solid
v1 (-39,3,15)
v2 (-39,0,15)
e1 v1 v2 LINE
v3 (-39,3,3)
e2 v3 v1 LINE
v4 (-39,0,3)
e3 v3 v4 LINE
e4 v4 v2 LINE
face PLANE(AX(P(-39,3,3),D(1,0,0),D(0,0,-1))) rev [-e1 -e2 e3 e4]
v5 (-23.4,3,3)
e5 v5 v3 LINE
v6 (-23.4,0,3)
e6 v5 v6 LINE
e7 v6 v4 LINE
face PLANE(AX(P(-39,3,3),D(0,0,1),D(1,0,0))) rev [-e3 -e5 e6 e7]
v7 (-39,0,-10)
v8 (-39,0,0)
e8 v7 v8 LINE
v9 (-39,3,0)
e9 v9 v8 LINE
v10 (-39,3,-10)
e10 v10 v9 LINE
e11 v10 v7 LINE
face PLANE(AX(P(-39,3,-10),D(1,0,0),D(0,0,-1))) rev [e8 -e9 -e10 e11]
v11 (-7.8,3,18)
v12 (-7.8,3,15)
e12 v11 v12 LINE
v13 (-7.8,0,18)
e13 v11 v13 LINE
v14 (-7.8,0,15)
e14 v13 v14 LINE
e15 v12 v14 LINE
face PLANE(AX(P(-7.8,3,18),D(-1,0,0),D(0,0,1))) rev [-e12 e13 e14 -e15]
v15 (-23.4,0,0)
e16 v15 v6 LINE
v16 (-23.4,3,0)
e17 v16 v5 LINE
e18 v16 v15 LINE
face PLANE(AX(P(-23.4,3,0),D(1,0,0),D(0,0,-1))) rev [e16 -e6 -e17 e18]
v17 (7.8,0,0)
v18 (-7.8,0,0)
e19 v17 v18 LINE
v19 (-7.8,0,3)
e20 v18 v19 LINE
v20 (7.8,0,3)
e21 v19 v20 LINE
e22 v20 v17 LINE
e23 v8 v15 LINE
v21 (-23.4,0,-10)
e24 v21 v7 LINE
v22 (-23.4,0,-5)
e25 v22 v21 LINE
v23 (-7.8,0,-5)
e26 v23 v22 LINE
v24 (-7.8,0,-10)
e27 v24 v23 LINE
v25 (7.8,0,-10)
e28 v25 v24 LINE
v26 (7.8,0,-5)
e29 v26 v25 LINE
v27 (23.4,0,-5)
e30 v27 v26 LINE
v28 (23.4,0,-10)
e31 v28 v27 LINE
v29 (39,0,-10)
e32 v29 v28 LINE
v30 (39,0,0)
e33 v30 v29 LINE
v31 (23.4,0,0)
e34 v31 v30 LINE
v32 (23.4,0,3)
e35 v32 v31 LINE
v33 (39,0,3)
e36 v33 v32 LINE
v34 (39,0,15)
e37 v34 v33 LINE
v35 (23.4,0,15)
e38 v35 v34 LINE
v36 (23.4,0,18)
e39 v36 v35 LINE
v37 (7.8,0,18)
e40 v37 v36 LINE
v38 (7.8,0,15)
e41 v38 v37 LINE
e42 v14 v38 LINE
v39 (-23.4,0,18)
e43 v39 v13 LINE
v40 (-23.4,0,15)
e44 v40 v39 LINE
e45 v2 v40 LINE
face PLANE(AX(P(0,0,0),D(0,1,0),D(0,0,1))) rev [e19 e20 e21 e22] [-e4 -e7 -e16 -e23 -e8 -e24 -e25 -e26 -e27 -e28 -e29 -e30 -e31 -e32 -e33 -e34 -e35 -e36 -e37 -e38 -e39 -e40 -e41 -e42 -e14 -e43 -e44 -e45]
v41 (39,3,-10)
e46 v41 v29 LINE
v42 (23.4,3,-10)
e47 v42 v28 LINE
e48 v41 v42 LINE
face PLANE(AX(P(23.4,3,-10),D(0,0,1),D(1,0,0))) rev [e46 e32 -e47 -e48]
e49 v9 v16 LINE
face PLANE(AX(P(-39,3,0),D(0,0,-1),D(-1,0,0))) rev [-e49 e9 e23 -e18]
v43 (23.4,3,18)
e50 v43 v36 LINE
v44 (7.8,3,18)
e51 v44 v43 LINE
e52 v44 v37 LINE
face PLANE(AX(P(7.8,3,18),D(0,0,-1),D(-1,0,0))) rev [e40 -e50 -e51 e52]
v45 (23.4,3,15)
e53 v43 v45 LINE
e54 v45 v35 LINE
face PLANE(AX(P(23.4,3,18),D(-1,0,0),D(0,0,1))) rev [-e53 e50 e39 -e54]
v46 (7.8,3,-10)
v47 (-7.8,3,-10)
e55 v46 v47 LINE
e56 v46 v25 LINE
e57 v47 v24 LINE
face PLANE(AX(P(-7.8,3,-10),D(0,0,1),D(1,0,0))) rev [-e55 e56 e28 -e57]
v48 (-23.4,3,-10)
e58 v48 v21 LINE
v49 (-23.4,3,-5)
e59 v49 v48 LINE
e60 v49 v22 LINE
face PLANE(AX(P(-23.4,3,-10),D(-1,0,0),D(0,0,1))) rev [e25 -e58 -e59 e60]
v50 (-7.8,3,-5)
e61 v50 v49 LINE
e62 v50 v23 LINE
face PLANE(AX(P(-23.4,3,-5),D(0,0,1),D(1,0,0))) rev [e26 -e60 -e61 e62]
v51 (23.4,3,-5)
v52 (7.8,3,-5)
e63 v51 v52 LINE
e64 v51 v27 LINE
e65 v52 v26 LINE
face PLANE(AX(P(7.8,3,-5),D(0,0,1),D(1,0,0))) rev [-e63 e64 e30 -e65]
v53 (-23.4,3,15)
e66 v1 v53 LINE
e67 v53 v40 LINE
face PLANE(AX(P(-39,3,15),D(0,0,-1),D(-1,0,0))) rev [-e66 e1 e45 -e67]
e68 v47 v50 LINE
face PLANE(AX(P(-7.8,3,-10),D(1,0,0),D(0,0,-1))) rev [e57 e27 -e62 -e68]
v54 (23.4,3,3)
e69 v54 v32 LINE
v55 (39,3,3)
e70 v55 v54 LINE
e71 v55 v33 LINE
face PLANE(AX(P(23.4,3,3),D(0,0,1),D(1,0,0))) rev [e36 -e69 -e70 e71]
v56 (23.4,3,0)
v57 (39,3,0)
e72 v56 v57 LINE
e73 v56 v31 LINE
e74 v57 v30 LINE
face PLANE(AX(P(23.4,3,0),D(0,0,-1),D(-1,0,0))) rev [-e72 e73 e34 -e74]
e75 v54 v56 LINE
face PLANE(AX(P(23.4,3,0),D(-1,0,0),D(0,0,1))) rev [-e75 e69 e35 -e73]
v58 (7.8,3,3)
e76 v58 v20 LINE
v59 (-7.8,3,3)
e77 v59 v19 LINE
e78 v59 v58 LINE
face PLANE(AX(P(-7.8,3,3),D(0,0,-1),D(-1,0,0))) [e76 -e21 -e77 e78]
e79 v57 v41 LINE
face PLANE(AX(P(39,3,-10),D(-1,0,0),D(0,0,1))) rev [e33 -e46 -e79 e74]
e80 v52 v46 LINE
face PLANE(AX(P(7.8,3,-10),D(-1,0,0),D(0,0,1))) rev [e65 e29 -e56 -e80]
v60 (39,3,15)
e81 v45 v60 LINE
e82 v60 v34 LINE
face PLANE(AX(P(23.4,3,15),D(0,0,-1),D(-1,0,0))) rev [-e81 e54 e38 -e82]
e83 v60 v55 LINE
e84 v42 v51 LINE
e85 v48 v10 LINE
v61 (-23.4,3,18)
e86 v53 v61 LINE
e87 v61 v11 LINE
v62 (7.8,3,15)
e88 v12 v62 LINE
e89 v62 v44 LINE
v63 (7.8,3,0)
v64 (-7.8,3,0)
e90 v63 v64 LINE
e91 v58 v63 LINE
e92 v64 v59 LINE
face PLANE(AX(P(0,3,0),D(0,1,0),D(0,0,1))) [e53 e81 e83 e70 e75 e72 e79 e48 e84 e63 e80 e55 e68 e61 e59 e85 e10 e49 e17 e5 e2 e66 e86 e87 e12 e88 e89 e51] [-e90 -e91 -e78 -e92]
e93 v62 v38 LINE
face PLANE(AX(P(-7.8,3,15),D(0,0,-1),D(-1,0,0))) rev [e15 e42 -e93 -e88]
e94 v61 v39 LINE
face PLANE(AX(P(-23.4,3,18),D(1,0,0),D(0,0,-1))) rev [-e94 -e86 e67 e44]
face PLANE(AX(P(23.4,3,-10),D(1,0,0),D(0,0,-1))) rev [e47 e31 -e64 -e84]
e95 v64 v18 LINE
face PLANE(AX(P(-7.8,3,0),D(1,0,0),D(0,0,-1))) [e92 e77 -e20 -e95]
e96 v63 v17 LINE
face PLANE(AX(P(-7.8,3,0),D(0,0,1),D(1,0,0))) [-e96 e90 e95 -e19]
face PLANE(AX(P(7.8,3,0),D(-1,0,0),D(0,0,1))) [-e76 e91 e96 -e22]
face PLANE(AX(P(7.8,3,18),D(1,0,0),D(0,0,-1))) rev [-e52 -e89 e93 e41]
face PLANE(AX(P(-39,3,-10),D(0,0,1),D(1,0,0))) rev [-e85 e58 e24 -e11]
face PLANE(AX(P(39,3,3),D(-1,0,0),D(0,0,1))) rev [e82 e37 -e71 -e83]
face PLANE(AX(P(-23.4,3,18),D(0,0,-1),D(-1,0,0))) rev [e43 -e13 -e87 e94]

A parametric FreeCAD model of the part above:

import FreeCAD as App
import Part
import Sketcher

doc = App.newDocument("Part")
body = doc.addObject("PartDesign::Body", "Body")

sketch1 = body.newObject("Sketcher::SketchObject", "Sketch")
sketch1.AttachmentSupport = (doc.getObject("XZ_Plane"), [""])
sketch1.MapMode = "FlatFace"
sketch1.addGeometry(Part.LineSegment(App.Vector(-7.8, -5, 0), App.Vector(-23.4, -5, 0)), False)
sketch1.addGeometry(Part.LineSegment(App.Vector(-23.4, -5, 0), App.Vector(-23.4, -10, 0)), False)
sketch1.addGeometry(Part.LineSegment(App.Vector(-23.4, -10, 0), App.Vector(-39, -10, 0)), False)
sketch1.addGeometry(Part.LineSegment(App.Vector(-39, -10, 0), App.Vector(-39, 0, 0)), False)
sketch1.addGeometry(Part.LineSegment(App.Vector(-39, 0, 0), App.Vector(-23.4, 0, 0)), False)
sketch1.addGeometry(Part.LineSegment(App.Vector(-23.4, 0, 0), App.Vector(-23.4, 3, 0)), False)
sketch1.addGeometry(Part.LineSegment(App.Vector(-23.4, 3, 0), App.Vector(-39, 3, 0)), False)
sketch1.addGeometry(Part.LineSegment(App.Vector(-39, 3, 0), App.Vector(-39, 15, 0)), False)
sketch1.addGeometry(Part.LineSegment(App.Vector(-39, 15, 0), App.Vector(-23.4, 15, 0)), False)
sketch1.addGeometry(Part.LineSegment(App.Vector(-23.4, 15, 0), App.Vector(-23.4, 18, 0)), False)
sketch1.addGeometry(Part.LineSegment(App.Vector(-23.4, 18, 0), App.Vector(-7.8, 18, 0)), False)
sketch1.addGeometry(Part.LineSegment(App.Vector(-7.8, 18, 0), App.Vector(-7.8, 15, 0)), False)
sketch1.addGeometry(Part.LineSegment(App.Vector(-7.8, 15, 0), App.Vector(7.8, 15, 0)), False)
sketch1.addGeometry(Part.LineSegment(App.Vector(7.8, 15, 0), App.Vector(7.8, 18, 0)), False)
sketch1.addGeometry(Part.LineSegment(App.Vector(7.8, 18, 0), App.Vector(23.4, 18, 0)), False)
sketch1.addGeometry(Part.LineSegment(App.Vector(23.4, 18, 0), App.Vector(23.4, 15, 0)), False)
sketch1.addGeometry(Part.LineSegment(App.Vector(23.4, 15, 0), App.Vector(39, 15, 0)), False)
sketch1.addGeometry(Part.LineSegment(App.Vector(39, 15, 0), App.Vector(39, 3, 0)), False)
sketch1.addGeometry(Part.LineSegment(App.Vector(39, 3, 0), App.Vector(23.4, 3, 0)), False)
sketch1.addGeometry(Part.LineSegment(App.Vector(23.4, 3, 0), App.Vector(23.4, 0, 0)), False)
sketch1.addGeometry(Part.LineSegment(App.Vector(23.4, 0, 0), App.Vector(39, 0, 0)), False)
sketch1.addGeometry(Part.LineSegment(App.Vector(39, 0, 0), App.Vector(39, -10, 0)), False)
sketch1.addGeometry(Part.LineSegment(App.Vector(39, -10, 0), App.Vector(23.4, -10, 0)), False)
sketch1.addGeometry(Part.LineSegment(App.Vector(23.4, -10, 0), App.Vector(23.4, -5, 0)), False)
sketch1.addGeometry(Part.LineSegment(App.Vector(23.4, -5, 0), App.Vector(7.8, -5, 0)), False)
sketch1.addGeometry(Part.LineSegment(App.Vector(7.8, -5, 0), App.Vector(7.8, -10, 0)), False)
sketch1.addGeometry(Part.LineSegment(App.Vector(7.8, -10, 0), App.Vector(-7.8, -10, 0)), False)
sketch1.addGeometry(Part.LineSegment(App.Vector(-7.8, -10, 0), App.Vector(-7.8, -5, 0)), False)
sketch1.addGeometry(Part.LineSegment(App.Vector(-7.8, 3, 0), App.Vector(-7.8, 0, 0)), False)
sketch1.addGeometry(Part.LineSegment(App.Vector(-7.8, 0, 0), App.Vector(7.8, 0, 0)), False)
sketch1.addGeometry(Part.LineSegment(App.Vector(7.8, 0, 0), App.Vector(7.8, 3, 0)), False)
sketch1.addGeometry(Part.LineSegment(App.Vector(7.8, 3, 0), App.Vector(-7.8, 3, 0)), False)
sketch1.addConstraint(Sketcher.Constraint("Coincident", 0, 2, 1, 1))
sketch1.addConstraint(Sketcher.Constraint("Coincident", 1, 2, 2, 1))
sketch1.addConstraint(Sketcher.Constraint("Coincident", 2, 2, 3, 1))
sketch1.addConstraint(Sketcher.Constraint("Coincident", 3, 2, 4, 1))
sketch1.addConstraint(Sketcher.Constraint("Coincident", 4, 2, 5, 1))
sketch1.addConstraint(Sketcher.Constraint("Coincident", 5, 2, 6, 1))
sketch1.addConstraint(Sketcher.Constraint("Coincident", 6, 2, 7, 1))
sketch1.addConstraint(Sketcher.Constraint("Coincident", 7, 2, 8, 1))
sketch1.addConstraint(Sketcher.Constraint("Coincident", 8, 2, 9, 1))
sketch1.addConstraint(Sketcher.Constraint("Coincident", 9, 2, 10, 1))
sketch1.addConstraint(Sketcher.Constraint("Coincident", 10, 2, 11, 1))
sketch1.addConstraint(Sketcher.Constraint("Coincident", 11, 2, 12, 1))
sketch1.addConstraint(Sketcher.Constraint("Coincident", 12, 2, 13, 1))
sketch1.addConstraint(Sketcher.Constraint("Coincident", 13, 2, 14, 1))
sketch1.addConstraint(Sketcher.Constraint("Coincident", 14, 2, 15, 1))
sketch1.addConstraint(Sketcher.Constraint("Coincident", 15, 2, 16, 1))
sketch1.addConstraint(Sketcher.Constraint("Coincident", 16, 2, 17, 1))
sketch1.addConstraint(Sketcher.Constraint("Coincident", 17, 2, 18, 1))
sketch1.addConstraint(Sketcher.Constraint("Coincident", 18, 2, 19, 1))
sketch1.addConstraint(Sketcher.Constraint("Coincident", 19, 2, 20, 1))
sketch1.addConstraint(Sketcher.Constraint("Coincident", 20, 2, 21, 1))
sketch1.addConstraint(Sketcher.Constraint("Coincident", 21, 2, 22, 1))
sketch1.addConstraint(Sketcher.Constraint("Coincident", 22, 2, 23, 1))
sketch1.addConstraint(Sketcher.Constraint("Coincident", 23, 2, 24, 1))
sketch1.addConstraint(Sketcher.Constraint("Coincident", 24, 2, 25, 1))
sketch1.addConstraint(Sketcher.Constraint("Coincident", 25, 2, 26, 1))
sketch1.addConstraint(Sketcher.Constraint("Coincident", 26, 2, 27, 1))
sketch1.addConstraint(Sketcher.Constraint("Coincident", 27, 2, 0, 1))
sketch1.addConstraint(Sketcher.Constraint("Coincident", 28, 2, 29, 1))
sketch1.addConstraint(Sketcher.Constraint("Coincident", 29, 2, 30, 1))
sketch1.addConstraint(Sketcher.Constraint("Coincident", 30, 2, 31, 1))
sketch1.addConstraint(Sketcher.Constraint("Coincident", 31, 2, 28, 1))
sketch1.addConstraint(Sketcher.Constraint("Horizontal", 0))
sketch1.addConstraint(Sketcher.Constraint("Vertical", 1))
sketch1.addConstraint(Sketcher.Constraint("Horizontal", 2))
sketch1.addConstraint(Sketcher.Constraint("Vertical", 3))
sketch1.addConstraint(Sketcher.Constraint("Horizontal", 4))
sketch1.addConstraint(Sketcher.Constraint("Vertical", 5))
sketch1.addConstraint(Sketcher.Constraint("Horizontal", 6))
sketch1.addConstraint(Sketcher.Constraint("Vertical", 7))
sketch1.addConstraint(Sketcher.Constraint("Horizontal", 8))
sketch1.addConstraint(Sketcher.Constraint("Vertical", 9))
sketch1.addConstraint(Sketcher.Constraint("Horizontal", 10))
sketch1.addConstraint(Sketcher.Constraint("Vertical", 11))
sketch1.addConstraint(Sketcher.Constraint("Horizontal", 12))
sketch1.addConstraint(Sketcher.Constraint("Vertical", 13))
sketch1.addConstraint(Sketcher.Constraint("Horizontal", 14))
sketch1.addConstraint(Sketcher.Constraint("Vertical", 15))
sketch1.addConstraint(Sketcher.Constraint("Horizontal", 16))
sketch1.addConstraint(Sketcher.Constraint("Vertical", 17))
sketch1.addConstraint(Sketcher.Constraint("Horizontal", 18))
sketch1.addConstraint(Sketcher.Constraint("Vertical", 19))
sketch1.addConstraint(Sketcher.Constraint("Horizontal", 20))
sketch1.addConstraint(Sketcher.Constraint("Vertical", 21))
sketch1.addConstraint(Sketcher.Constraint("Horizontal", 22))
sketch1.addConstraint(Sketcher.Constraint("Vertical", 23))
sketch1.addConstraint(Sketcher.Constraint("Horizontal", 24))
sketch1.addConstraint(Sketcher.Constraint("Vertical", 25))
sketch1.addConstraint(Sketcher.Constraint("Horizontal", 26))
sketch1.addConstraint(Sketcher.Constraint("Vertical", 27))
sketch1.addConstraint(Sketcher.Constraint("Vertical", 28))
sketch1.addConstraint(Sketcher.Constraint("Horizontal", 29))
sketch1.addConstraint(Sketcher.Constraint("Vertical", 30))
sketch1.addConstraint(Sketcher.Constraint("Horizontal", 31))
sketch1.addConstraint(Sketcher.Constraint("Symmetric", 4, 2, 19, 2, -1, 1))
sketch1.addConstraint(Sketcher.Constraint("Symmetric", 28, 2, 29, 2, -1, 1))
sketch1.addConstraint(Sketcher.Constraint("Symmetric", 10, 2, 13, 2, -2))
sketch1.addConstraint(Sketcher.Constraint("Symmetric", 8, 2, 15, 2, -2))
sketch1.addConstraint(Sketcher.Constraint("Symmetric", 6, 2, 17, 2, -2))
sketch1.addConstraint(Sketcher.Constraint("Symmetric", 3, 2, 20, 2, -2))
sketch1.addConstraint(Sketcher.Constraint("Symmetric", 1, 2, 22, 2, -2))
sketch1.addConstraint(Sketcher.Constraint("Symmetric", 24, 2, 27, 2, -2))
sketch1.addConstraint(Sketcher.Constraint("Horizontal", 8, 2, 11, 2))
sketch1.addConstraint(Sketcher.Constraint("Horizontal", 22, 2, 25, 2))
sketch1.addConstraint(Sketcher.Constraint("Horizontal", 18, 2, 30, 2))
sketch1.addConstraint(Sketcher.Constraint("Vertical", 1, 2, 4, 2))
sketch1.addConstraint(Sketcher.Constraint("Vertical", 3, 2, 6, 2))
sketch1.addConstraint(Sketcher.Constraint("Vertical", 5, 2, 8, 2))
sketch1.addConstraint(Sketcher.Constraint("Vertical", 13, 2, 24, 2))
sketch1.addConstraint(Sketcher.Constraint("Vertical", 27, 2, 28, 2))
sketch1.addConstraint(Sketcher.Constraint("Equal", 0, 2))
sketch1.addConstraint(Sketcher.Constraint("Equal", 10, 12))
sketch1.addConstraint(Sketcher.Constraint("Equal", 5, 9))
sketch1.addConstraint(Sketcher.Constraint("DistanceY", 1, 2, 1, 1, 5.0))
sketch1.addConstraint(Sketcher.Constraint("DistanceY", 3, 1, 3, 2, 10.0))
sketch1.addConstraint(Sketcher.Constraint("DistanceY", 5, 1, 5, 2, 3.0))
sketch1.addConstraint(Sketcher.Constraint("DistanceY", 7, 1, 7, 2, 12.0))
sketch1.addConstraint(Sketcher.Constraint("DistanceX", 0, 2, 0, 1, 15.6))
pad1 = body.newObject("PartDesign::Pad", "Pad")
pad1.Profile = sketch1
pad1.Length = 3
pad1.Reversed = True

doc.recompute()
